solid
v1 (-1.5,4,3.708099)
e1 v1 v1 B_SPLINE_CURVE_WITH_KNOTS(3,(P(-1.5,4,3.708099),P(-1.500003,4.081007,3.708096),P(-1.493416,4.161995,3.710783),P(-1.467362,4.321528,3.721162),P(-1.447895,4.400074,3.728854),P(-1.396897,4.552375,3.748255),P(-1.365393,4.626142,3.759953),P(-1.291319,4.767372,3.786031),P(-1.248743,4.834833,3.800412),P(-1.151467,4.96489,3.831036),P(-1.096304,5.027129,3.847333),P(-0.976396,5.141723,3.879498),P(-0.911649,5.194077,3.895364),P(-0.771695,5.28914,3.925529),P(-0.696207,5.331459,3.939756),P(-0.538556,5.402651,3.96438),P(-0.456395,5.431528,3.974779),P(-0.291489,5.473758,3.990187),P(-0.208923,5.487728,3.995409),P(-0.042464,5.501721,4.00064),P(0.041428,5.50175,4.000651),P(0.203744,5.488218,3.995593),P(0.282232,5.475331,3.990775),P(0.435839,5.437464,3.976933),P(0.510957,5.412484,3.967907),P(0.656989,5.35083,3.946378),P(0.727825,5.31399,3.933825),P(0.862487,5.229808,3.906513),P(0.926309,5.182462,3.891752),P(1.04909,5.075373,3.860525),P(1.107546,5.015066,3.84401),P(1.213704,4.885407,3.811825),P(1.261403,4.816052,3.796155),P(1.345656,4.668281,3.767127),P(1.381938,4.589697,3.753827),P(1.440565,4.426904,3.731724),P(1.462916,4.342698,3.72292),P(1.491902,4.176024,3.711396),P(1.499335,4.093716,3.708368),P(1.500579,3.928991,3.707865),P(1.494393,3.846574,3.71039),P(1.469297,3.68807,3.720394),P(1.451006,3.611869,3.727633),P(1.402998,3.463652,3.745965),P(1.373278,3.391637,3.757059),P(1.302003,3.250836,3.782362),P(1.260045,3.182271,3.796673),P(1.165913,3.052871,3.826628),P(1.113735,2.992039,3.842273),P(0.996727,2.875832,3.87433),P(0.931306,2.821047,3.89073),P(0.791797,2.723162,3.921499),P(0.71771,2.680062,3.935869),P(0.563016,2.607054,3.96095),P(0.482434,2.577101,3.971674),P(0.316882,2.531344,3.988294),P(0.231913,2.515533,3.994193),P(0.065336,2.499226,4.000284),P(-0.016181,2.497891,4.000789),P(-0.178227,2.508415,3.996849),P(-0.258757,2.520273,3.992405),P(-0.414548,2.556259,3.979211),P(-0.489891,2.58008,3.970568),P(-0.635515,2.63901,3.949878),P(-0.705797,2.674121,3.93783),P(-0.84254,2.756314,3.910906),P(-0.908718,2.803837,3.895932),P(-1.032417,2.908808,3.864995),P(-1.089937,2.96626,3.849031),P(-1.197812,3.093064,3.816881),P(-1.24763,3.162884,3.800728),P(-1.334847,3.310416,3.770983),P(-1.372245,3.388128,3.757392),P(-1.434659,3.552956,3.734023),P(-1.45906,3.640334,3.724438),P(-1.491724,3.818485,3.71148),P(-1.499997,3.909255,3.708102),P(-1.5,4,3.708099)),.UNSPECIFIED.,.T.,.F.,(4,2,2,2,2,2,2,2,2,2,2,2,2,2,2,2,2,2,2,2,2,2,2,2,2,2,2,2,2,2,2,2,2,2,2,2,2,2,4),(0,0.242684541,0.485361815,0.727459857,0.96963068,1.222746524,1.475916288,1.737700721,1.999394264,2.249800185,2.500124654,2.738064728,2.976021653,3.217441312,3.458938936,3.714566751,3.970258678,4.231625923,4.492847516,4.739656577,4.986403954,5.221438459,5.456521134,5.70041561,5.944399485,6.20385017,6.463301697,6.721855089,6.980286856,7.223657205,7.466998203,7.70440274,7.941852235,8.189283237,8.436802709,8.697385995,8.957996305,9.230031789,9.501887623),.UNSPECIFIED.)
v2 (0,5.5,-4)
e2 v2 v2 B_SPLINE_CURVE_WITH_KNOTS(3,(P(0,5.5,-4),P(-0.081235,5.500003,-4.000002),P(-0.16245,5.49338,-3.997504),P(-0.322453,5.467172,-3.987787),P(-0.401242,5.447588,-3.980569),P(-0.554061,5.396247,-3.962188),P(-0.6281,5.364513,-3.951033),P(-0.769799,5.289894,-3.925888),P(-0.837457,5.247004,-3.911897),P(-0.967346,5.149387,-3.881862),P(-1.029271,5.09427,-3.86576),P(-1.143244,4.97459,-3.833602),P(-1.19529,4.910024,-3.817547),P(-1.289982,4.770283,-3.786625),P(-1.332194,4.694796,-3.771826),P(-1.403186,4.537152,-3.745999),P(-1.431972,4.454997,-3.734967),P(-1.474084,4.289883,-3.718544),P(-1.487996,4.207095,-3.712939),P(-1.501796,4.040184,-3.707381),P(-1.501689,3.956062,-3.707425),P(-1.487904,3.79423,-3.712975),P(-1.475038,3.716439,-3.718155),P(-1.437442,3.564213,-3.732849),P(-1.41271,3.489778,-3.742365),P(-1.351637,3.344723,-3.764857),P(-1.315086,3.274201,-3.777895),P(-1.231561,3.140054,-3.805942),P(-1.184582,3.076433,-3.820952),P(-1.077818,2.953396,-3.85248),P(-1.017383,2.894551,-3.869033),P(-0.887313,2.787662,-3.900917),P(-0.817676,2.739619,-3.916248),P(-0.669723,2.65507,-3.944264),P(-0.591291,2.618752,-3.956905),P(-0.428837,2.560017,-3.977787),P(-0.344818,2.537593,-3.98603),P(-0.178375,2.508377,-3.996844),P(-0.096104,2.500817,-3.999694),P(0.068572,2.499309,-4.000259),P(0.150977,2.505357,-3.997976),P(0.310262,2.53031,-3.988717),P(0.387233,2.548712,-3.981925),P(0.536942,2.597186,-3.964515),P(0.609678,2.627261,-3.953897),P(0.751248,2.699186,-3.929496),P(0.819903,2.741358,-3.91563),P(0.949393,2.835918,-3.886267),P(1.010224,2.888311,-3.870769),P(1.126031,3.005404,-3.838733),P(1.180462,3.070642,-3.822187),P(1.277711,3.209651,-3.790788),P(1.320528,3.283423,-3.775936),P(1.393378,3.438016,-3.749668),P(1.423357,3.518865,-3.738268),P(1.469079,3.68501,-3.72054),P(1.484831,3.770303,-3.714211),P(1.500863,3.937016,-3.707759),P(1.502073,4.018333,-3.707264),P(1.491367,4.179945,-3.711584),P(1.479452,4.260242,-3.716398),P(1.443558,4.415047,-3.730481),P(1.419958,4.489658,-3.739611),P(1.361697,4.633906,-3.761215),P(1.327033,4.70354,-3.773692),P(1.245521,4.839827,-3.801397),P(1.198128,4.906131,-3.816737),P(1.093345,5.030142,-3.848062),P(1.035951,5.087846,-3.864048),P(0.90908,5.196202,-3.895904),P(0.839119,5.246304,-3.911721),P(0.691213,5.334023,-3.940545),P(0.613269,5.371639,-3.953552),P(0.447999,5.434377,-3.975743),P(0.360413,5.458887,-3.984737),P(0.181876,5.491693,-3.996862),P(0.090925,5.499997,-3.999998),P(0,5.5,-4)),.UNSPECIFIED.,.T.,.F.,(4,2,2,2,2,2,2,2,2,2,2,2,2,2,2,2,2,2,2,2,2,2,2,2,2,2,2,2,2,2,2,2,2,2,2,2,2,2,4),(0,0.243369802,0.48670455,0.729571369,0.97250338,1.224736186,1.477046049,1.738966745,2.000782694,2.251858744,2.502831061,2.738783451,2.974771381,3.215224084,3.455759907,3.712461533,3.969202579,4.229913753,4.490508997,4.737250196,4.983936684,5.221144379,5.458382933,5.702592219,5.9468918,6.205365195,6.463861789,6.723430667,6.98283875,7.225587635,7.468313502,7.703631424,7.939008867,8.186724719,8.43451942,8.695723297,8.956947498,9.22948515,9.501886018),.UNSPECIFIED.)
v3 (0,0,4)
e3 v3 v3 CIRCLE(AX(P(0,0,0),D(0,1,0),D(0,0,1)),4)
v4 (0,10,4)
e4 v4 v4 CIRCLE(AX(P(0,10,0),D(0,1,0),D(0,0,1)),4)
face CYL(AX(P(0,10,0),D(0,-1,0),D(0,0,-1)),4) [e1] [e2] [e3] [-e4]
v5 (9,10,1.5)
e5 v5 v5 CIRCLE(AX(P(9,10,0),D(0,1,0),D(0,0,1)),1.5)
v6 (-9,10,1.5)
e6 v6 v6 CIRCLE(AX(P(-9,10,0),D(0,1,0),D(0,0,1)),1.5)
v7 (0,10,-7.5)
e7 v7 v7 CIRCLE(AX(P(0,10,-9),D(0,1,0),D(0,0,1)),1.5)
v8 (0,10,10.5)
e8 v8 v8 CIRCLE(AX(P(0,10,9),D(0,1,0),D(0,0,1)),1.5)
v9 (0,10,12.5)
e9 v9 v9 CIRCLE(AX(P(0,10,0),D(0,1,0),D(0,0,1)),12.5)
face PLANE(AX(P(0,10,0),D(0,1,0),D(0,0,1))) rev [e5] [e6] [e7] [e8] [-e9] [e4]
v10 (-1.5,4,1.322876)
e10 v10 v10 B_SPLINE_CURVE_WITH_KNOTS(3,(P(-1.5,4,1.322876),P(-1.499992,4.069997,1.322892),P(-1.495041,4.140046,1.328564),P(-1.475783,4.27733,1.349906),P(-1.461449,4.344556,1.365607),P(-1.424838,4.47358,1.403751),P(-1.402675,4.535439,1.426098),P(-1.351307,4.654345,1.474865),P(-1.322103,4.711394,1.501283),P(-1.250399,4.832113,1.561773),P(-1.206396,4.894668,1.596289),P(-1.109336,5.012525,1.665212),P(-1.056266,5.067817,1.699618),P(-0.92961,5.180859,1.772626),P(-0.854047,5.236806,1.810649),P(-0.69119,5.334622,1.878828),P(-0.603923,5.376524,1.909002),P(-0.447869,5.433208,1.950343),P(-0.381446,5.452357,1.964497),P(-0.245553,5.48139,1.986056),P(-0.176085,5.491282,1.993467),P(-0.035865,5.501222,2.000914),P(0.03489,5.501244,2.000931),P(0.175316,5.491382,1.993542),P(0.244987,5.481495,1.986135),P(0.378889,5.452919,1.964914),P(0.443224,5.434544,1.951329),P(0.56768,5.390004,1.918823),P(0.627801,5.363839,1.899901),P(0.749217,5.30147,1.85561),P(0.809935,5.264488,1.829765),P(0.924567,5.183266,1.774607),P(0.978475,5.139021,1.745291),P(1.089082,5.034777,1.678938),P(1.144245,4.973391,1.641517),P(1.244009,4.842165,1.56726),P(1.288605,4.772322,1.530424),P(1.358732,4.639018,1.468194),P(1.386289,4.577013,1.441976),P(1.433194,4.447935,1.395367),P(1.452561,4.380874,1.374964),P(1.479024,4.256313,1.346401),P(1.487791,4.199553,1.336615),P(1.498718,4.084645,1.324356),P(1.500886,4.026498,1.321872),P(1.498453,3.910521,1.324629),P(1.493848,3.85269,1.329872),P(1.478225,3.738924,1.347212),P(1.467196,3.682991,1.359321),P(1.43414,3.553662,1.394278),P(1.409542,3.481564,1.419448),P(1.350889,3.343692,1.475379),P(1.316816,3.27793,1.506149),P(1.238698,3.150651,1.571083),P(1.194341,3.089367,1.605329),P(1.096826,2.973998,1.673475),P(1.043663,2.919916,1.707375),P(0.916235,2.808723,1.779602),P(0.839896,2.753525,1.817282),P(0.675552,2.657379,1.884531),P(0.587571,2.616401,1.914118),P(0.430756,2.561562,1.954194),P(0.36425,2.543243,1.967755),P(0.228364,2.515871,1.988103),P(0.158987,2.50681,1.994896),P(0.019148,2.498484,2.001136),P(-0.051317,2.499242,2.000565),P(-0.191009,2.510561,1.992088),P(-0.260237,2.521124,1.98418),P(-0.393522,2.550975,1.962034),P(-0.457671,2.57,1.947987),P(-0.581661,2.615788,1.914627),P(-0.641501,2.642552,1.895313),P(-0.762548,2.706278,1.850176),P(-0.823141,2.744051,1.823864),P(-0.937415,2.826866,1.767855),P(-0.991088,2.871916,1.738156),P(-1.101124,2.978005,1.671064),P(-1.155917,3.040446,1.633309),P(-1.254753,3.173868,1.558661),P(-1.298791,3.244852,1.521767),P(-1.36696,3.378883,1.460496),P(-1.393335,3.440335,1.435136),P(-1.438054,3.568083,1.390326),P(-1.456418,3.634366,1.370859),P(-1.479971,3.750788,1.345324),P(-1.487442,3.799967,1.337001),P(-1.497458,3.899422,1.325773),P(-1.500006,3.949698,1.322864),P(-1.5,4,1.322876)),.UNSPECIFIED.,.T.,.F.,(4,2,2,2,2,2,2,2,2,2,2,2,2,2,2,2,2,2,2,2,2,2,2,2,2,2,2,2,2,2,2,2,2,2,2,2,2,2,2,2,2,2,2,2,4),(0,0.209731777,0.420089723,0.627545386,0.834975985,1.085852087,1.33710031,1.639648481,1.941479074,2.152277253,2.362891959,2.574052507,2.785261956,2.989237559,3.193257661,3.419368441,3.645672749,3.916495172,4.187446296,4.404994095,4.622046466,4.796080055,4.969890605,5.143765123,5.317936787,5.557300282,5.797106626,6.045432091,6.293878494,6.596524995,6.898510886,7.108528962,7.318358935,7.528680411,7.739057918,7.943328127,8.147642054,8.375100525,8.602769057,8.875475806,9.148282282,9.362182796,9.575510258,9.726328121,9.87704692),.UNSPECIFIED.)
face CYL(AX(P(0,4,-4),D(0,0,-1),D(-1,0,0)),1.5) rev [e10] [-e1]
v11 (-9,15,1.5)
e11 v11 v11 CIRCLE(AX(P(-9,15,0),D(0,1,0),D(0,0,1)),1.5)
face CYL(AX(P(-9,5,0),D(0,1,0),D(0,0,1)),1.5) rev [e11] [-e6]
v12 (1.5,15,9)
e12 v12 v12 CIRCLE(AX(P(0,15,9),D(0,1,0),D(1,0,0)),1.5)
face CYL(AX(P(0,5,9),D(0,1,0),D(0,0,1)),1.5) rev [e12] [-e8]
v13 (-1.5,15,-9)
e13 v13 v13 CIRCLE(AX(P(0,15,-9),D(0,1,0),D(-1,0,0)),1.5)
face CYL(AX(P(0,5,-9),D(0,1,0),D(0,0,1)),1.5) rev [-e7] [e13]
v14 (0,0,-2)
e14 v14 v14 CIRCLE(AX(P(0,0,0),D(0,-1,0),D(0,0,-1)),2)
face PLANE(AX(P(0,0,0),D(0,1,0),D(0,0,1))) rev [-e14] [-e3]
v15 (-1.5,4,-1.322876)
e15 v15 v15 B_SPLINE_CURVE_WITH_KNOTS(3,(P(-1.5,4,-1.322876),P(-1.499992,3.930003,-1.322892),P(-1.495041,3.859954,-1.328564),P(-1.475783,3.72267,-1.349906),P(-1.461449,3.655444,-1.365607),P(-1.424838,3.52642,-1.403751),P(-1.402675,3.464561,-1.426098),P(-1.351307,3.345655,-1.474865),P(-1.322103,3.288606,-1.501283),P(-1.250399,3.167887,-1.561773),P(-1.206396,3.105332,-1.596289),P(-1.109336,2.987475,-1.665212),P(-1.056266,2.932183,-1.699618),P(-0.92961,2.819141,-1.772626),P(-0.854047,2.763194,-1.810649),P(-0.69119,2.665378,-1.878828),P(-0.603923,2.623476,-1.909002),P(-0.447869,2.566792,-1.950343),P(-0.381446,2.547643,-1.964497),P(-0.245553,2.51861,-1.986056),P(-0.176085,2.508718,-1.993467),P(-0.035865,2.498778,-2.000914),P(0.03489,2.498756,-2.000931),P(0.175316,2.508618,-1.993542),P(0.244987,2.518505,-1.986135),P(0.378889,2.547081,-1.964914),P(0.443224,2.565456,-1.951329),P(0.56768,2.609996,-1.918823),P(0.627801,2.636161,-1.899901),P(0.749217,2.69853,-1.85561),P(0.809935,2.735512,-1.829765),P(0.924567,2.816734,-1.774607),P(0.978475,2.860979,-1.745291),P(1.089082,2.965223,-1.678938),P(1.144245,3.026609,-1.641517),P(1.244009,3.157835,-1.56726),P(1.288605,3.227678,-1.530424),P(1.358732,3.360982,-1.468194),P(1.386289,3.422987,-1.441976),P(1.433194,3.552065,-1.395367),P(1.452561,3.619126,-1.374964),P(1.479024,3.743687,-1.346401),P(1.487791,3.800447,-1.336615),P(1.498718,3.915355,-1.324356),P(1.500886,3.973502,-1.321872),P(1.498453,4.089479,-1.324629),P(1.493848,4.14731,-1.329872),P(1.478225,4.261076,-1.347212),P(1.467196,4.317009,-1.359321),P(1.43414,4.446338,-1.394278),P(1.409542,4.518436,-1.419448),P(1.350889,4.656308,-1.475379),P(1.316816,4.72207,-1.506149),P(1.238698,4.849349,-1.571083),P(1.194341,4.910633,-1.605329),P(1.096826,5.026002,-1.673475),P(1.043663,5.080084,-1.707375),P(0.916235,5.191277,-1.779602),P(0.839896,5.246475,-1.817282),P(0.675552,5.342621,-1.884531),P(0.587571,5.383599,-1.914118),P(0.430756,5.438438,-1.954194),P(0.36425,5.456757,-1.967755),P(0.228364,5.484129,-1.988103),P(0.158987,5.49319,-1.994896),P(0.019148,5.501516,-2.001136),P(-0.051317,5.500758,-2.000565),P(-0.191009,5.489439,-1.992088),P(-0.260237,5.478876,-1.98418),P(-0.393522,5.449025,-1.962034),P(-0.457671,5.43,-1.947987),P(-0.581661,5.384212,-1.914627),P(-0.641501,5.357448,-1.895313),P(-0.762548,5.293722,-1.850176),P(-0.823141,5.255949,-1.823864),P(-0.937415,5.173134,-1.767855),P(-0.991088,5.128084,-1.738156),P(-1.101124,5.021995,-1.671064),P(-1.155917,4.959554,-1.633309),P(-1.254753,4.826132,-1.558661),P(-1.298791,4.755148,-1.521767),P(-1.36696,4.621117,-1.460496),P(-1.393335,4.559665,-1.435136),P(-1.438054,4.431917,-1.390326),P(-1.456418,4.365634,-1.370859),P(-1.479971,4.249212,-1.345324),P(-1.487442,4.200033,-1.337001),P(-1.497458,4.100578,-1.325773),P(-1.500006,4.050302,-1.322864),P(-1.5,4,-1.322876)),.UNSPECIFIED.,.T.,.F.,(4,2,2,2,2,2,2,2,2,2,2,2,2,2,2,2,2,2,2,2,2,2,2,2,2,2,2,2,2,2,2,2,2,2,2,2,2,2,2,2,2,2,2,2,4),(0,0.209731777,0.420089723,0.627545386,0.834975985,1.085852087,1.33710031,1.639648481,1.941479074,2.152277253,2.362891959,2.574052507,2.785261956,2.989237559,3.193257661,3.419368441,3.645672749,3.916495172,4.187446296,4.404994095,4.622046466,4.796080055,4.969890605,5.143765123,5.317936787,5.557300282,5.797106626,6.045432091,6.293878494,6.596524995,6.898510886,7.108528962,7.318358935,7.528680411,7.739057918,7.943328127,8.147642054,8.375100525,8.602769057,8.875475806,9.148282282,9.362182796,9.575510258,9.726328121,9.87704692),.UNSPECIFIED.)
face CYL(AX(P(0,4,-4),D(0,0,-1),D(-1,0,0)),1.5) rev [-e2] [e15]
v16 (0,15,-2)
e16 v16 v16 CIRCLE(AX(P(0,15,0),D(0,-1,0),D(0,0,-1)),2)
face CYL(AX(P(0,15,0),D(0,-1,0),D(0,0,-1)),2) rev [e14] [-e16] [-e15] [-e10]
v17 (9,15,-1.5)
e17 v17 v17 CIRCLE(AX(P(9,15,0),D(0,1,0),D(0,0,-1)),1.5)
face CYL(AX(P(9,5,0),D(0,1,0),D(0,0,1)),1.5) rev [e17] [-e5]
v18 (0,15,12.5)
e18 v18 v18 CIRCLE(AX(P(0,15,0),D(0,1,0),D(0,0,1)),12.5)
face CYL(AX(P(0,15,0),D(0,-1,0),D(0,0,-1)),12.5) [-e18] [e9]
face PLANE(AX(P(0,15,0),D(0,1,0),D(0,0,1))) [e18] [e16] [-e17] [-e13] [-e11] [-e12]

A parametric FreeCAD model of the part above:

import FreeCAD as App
import Part
import Sketcher

V = App.Vector
Q = App.Units.Quantity

doc = App.newDocument("Part")
params = doc.addObject("Spreadsheet::Sheet", "Params")
for row, (alias, value) in enumerate([
    ("sketch1_diameter", "8 mm"),
    ("pad1_length", "10 mm"),
    ("sketch2_diameter", "25 mm"),
    ("pad2_length", "5 mm"),
    ("sketch3_diameter", "3 mm"),
    ("hole_diameter", "3 mm"),
    ("sketch4_diameter", "3 mm"),
    ("pocket1_length", "10 mm"),
    ("sketch5_diameter", "4 mm"),
], start=1):
    params.set(f"A{row}", alias)
    params.set(f"B{row}", "=" + value)
    params.setAlias(f"B{row}", alias)

body = doc.addObject("PartDesign::Body", "Body")

# Sketch on XZ plane
sketch1 = body.newObject("Sketcher::SketchObject", "Sketch")
sketch1.AttachmentSupport = (doc.getObject("XZ_Plane"), [""])
sketch1.MapMode = "FlatFace"
sketch1.addGeometry(Part.Circle(V(0, 0, 0), V(0, 0, 1), 4), False)
sketch1.addConstraint([
    Sketcher.Constraint("Coincident", 0, 3, -1, 1),
    Sketcher.Constraint("Diameter", 0, Q("8 mm")),
])
sketch1.setExpression("Constraints[1]", "Params.sketch1_diameter")
pad1 = body.newObject("PartDesign::Pad", "Pad")
pad1.Profile = sketch1
pad1.setExpression("Length", "Params.pad1_length")
pad1.Reversed = True

# Sketch on XZ plane
sketch2 = body.newObject("Sketcher::SketchObject", "Sketch001")
sketch2.AttachmentSupport = (doc.getObject("XZ_Plane"), [""])
sketch2.MapMode = "FlatFace"
sketch2.AttachmentOffset = App.Placement(V(0, 0, -10), App.Rotation())
sketch2.addGeometry(Part.Circle(V(0, 0, 0), V(0, 0, 1), 12), False)
sketch2.addConstraint([
    Sketcher.Constraint("Coincident", 0, 3, -1, 1),
    Sketcher.Constraint("Diameter", 0, Q("25 mm")),
])
sketch2.setExpression("Constraints[1]", "Params.sketch2_diameter")
pad2 = body.newObject("PartDesign::Pad", "Pad001")
pad2.Profile = sketch2
pad2.setExpression("Length", "Params.pad2_length")
pad2.Reversed = True

# Sketch on XY plane
sketch3 = body.newObject("Sketcher::SketchObject", "Sketch002")
sketch3.AttachmentSupport = (doc.getObject("XY_Plane"), [""])
sketch3.MapMode = "FlatFace"
sketch3.AttachmentOffset = App.Placement(V(0, 0, -4), App.Rotation())
sketch3.addGeometry(Part.Circle(V(0, 4, 0), V(0, 0, 1), 1.5), False)
sketch3.addConstraint([
    Sketcher.Constraint("PointOnObject", 0, 3, -2),
    Sketcher.Constraint("Diameter", 0, Q("3 mm")),
    Sketcher.Constraint("DistanceY", -1, 1, 0, 3, Q("4 mm")),
])
sketch3.setExpression("Constraints[1]", "Params.sketch3_diameter")
doc.recompute()
hole = body.newObject("PartDesign::Hole", "Hole")
hole.Profile = sketch3
hole.ThreadType = "None"
hole.setExpression("Diameter", "Params.hole_diameter")
hole.DepthType = "ThroughAll"
hole.Reversed = True

# Sketch on XZ plane
sketch4 = body.newObject("Sketcher::SketchObject", "Sketch003")
sketch4.AttachmentSupport = (doc.getObject("XZ_Plane"), [""])
sketch4.MapMode = "FlatFace"
sketch4.AttachmentOffset = App.Placement(V(0, 0, -15), App.Rotation())
sketch4.addGeometry(Part.Circle(V(-9, 0, 0), V(0, 0, 1), 1.5), False)
sketch4.addConstraint([
    Sketcher.Constraint("PointOnObject", 0, 3, -1),
    Sketcher.Constraint("Diameter", 0, Q("3 mm")),
    Sketcher.Constraint("DistanceX", 0, 3, -1, 1, Q("9 mm")),
])
sketch4.setExpression("Constraints[1]", "Params.sketch4_diameter")
pocket1 = body.newObject("PartDesign::Pocket", "Pocket")
pocket1.Profile = sketch4
pocket1.setExpression("Length", "Params.pocket1_length")
pocket1.Reversed = True

# Sketch on XZ plane
sketch5 = body.newObject("Sketcher::SketchObject", "Sketch004")
sketch5.AttachmentSupport = (doc.getObject("XZ_Plane"), [""])
sketch5.MapMode = "FlatFace"
sketch5.addGeometry(Part.Circle(V(0, 0, 0), V(0, 0, 1), 2), False)
sketch5.addConstraint([
    Sketcher.Constraint("Coincident", 0, 3, -1, 1),
    Sketcher.Constraint("Diameter", 0, Q("4 mm")),
])
sketch5.setExpression("Constraints[1]", "Params.sketch5_diameter")
pocket2 = body.newObject("PartDesign::Pocket", "Pocket001")
pocket2.Profile = sketch5
pocket2.Type = "ThroughAll"
doc.recompute()

polarpattern = body.newObject("PartDesign::PolarPattern", "PolarPattern")
polarpattern.Originals = [pocket1]
polarpattern.Axis = (doc.getObject("Y_Axis"), [""])
polarpattern.Angle = 360
polarpattern.Occurrences = 4
body.Tip = polarpattern

doc.recompute()
